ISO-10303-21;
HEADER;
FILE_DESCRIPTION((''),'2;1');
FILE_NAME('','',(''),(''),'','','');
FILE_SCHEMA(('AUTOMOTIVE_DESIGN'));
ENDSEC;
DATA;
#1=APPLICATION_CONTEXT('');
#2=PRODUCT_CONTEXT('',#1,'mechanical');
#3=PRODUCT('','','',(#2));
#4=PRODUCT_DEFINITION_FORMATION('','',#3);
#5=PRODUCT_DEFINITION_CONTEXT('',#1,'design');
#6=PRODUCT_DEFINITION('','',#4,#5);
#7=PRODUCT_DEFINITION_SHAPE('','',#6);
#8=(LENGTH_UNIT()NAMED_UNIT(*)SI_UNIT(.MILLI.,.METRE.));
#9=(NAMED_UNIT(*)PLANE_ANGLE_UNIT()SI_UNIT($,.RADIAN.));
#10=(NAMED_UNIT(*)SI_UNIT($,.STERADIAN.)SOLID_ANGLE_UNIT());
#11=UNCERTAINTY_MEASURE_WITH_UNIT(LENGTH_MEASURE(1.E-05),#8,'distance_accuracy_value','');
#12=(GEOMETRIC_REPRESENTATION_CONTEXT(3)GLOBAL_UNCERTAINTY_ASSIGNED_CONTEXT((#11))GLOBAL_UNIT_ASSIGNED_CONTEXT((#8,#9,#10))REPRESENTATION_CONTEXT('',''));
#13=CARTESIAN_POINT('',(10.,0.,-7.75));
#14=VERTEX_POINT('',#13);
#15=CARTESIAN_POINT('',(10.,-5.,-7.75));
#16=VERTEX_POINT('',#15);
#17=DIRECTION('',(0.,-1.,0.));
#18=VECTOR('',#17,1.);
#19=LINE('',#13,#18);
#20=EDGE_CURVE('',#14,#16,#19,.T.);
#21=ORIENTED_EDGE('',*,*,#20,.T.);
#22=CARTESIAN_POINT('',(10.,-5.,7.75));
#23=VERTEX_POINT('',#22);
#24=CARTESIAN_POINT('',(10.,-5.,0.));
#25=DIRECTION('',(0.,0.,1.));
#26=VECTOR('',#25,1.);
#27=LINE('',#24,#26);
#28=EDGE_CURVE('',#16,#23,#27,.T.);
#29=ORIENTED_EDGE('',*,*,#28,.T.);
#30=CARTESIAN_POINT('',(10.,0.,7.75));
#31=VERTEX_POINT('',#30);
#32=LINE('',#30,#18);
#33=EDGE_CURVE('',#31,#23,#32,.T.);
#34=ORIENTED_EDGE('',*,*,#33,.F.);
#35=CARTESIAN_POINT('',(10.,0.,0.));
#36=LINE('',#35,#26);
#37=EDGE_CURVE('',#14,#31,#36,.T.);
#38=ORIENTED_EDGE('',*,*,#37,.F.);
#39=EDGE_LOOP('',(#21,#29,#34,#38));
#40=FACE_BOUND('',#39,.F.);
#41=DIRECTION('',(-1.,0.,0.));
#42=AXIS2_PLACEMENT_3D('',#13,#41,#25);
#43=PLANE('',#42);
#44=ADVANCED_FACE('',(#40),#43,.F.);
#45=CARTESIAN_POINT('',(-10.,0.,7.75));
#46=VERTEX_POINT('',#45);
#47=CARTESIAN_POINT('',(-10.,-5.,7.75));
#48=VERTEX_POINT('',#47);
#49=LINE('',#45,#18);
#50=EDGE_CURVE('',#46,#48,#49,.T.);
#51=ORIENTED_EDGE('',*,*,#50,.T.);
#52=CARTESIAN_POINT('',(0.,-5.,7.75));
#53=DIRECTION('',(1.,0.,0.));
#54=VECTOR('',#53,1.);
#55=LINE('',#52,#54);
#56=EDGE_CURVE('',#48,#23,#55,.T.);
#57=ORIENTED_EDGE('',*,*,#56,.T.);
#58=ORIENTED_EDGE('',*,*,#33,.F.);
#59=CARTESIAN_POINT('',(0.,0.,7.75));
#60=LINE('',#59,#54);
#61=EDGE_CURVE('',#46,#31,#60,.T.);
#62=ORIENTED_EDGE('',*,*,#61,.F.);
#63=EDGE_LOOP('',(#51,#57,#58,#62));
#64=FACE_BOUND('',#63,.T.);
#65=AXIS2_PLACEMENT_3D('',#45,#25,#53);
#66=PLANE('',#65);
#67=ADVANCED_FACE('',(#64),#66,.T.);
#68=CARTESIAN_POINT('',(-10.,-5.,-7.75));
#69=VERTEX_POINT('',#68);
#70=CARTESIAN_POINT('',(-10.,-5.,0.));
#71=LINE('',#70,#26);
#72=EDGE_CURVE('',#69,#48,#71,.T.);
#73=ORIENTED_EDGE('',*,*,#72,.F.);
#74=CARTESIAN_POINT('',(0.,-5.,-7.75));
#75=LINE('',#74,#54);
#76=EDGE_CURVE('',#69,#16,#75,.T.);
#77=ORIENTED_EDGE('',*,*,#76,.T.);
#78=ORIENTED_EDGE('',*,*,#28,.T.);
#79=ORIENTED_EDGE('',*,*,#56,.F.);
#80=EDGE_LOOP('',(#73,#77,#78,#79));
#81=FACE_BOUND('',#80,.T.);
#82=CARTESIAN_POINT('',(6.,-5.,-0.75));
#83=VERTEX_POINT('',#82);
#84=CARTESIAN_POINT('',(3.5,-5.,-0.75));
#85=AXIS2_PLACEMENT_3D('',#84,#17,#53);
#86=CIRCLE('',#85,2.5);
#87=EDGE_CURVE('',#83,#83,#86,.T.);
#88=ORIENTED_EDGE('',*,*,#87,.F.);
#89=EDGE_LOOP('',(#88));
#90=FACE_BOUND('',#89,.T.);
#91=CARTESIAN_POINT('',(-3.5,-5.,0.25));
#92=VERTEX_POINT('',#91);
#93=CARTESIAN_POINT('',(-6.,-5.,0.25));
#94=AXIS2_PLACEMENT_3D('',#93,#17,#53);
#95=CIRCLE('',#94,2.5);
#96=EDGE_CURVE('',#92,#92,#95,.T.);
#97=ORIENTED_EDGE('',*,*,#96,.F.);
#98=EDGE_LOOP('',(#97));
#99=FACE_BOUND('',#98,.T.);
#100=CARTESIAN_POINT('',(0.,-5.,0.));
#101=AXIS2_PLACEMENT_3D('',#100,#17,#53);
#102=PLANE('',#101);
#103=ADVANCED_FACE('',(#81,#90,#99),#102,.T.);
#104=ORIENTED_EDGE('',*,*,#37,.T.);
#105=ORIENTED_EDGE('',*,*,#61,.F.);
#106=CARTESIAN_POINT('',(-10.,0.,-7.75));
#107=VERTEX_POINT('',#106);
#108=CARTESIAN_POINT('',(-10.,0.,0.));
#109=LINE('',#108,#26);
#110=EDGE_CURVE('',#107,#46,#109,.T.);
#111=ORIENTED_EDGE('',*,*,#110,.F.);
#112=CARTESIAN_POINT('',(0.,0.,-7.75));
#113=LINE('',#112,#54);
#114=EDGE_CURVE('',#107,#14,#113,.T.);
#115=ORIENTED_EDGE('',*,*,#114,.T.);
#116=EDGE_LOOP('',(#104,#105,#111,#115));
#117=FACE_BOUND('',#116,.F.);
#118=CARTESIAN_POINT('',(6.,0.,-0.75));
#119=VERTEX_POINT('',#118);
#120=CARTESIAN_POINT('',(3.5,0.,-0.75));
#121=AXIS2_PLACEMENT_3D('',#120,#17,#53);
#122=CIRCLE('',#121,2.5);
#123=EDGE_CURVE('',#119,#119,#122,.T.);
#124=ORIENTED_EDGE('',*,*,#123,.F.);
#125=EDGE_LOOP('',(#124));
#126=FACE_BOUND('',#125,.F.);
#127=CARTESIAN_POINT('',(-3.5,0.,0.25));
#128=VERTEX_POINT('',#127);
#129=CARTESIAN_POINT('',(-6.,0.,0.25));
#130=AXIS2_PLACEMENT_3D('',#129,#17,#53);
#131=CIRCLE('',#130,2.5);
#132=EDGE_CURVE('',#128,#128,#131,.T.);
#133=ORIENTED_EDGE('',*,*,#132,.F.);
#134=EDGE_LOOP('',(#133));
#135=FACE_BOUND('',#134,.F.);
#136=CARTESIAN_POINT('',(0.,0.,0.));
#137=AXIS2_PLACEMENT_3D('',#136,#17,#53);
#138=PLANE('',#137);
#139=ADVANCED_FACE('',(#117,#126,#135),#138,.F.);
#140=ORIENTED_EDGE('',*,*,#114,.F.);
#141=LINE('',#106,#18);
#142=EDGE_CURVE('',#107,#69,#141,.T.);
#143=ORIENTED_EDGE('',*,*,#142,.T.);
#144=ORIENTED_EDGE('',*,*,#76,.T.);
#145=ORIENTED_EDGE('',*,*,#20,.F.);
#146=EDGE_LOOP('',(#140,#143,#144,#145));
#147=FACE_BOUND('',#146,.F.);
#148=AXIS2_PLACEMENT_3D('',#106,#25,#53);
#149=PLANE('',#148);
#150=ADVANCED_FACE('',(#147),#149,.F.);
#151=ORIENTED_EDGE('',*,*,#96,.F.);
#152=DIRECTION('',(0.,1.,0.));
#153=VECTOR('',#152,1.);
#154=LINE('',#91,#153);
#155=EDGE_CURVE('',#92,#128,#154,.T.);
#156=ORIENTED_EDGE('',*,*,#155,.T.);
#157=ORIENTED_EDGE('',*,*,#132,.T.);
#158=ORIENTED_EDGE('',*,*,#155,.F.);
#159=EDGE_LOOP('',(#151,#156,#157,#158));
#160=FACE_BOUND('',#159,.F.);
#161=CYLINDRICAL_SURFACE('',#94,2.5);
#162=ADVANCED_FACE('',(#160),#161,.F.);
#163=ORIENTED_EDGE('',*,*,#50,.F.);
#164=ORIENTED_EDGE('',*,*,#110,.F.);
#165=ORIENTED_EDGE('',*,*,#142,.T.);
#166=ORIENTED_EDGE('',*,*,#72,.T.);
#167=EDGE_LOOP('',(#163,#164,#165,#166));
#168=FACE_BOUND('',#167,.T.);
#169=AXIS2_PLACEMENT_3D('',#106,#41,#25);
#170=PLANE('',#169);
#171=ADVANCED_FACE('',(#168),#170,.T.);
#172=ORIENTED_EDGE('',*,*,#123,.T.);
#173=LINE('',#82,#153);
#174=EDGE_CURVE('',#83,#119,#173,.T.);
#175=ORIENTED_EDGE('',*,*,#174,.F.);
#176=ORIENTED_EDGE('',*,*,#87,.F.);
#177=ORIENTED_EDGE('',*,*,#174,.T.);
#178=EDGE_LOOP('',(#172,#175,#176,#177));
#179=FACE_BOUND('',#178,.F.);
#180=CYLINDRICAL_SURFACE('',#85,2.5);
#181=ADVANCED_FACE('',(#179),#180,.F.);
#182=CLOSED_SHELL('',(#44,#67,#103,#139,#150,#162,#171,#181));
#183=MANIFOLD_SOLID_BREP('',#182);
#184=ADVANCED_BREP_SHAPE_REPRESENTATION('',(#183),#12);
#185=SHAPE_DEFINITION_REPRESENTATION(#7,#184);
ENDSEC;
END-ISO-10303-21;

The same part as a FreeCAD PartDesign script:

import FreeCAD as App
import Part
import Sketcher
Q = App.Units.Quantity


def add_polygon(sketch, points):
    """Adds a closed chain of lines whose ends are joined by coincident constraints."""
    first, n = sketch.GeometryCount, len(points)
    for a, b in zip(points, points[1:] + points[:1]):
        sketch.addGeometry(Part.LineSegment(App.Vector(*a, 0), App.Vector(*b, 0)), False)
    for i in range(n):
        sketch.addConstraint(Sketcher.Constraint("Coincident", first + i, 2, first + (i + 1) % n, 1))

doc = App.newDocument("Part")
params = doc.addObject("Spreadsheet::Sheet", "Params")
for row, (alias, value) in enumerate([
    ("sketch1_width", "20 mm"),
    ("sketch1_height", "15.5 mm"),
    ("pad1_length", "5 mm"),
    ("sketch2_diameter", "5 mm"),
    ("pocket1_length", "25 mm"),
    ("sketch3_diameter", "5 mm"),
    ("pocket2_length", "25 mm"),
], start=1):
    params.set(f"A{row}", alias)
    params.set(f"B{row}", "=" + value)
    params.setAlias(f"B{row}", alias)

body = doc.addObject("PartDesign::Body", "Body")

sketch1 = body.newObject("Sketcher::SketchObject", "Sketch")
sketch1.AttachmentSupport = (doc.getObject("XZ_Plane"), [""])
sketch1.MapMode = "FlatFace"
add_polygon(sketch1, [(-10, 8), (-10, -8), (10, -8), (10, 8)])
sketch1.addConstraint(Sketcher.Constraint("Vertical", 0))
sketch1.addConstraint(Sketcher.Constraint("Horizontal", 1))
sketch1.addConstraint(Sketcher.Constraint("Vertical", 2))
sketch1.addConstraint(Sketcher.Constraint("Horizontal", 3))
sketch1.addConstraint(Sketcher.Constraint("Symmetric", 0, 2, 2, 2, -1, 1))
sketch1.addConstraint(Sketcher.Constraint("DistanceX", 1, 1, 1, 2, Q("20 mm")))
sketch1.addConstraint(Sketcher.Constraint("DistanceY", 0, 2, 0, 1, Q("15.5 mm")))
sketch1.setExpression("Constraints[9]", "Params.sketch1_width")
sketch1.setExpression("Constraints[10]", "Params.sketch1_height")
pad1 = body.newObject("PartDesign::Pad", "Pad")
pad1.Profile = sketch1
pad1.setExpression("Length", "Params.pad1_length")

sketch2 = body.newObject("Sketcher::SketchObject", "Sketch001")
sketch2.AttachmentSupport = (doc.getObject("XZ_Plane"), [""])
sketch2.MapMode = "FlatFace"
sketch2.AttachmentOffset = App.Placement(App.Vector(0, 0, 5), App.Rotation())
sketch2.addGeometry(Part.Circle(App.Vector(-6, 0.2, 0), App.Vector(0, 0, 1), 2.5), False)
sketch2.addConstraint(Sketcher.Constraint("Diameter", 0, Q("5 mm")))
sketch2.addConstraint(Sketcher.Constraint("DistanceX", 0, 3, -1, 1, Q("6 mm")))
sketch2.addConstraint(Sketcher.Constraint("DistanceY", -1, 1, 0, 3, Q("0.25 mm")))
sketch2.setExpression("Constraints[0]", "Params.sketch2_diameter")
pocket1 = body.newObject("PartDesign::Pocket", "Pocket")
pocket1.Profile = sketch2
pocket1.setExpression("Length", "Params.pocket1_length")

sketch3 = body.newObject("Sketcher::SketchObject", "Sketch002")
sketch3.AttachmentSupport = (doc.getObject("XZ_Plane"), [""])
sketch3.MapMode = "FlatFace"
sketch3.AttachmentOffset = App.Placement(App.Vector(0, 0, 5), App.Rotation())
sketch3.addGeometry(Part.Circle(App.Vector(3.5, -0.8, 0), App.Vector(0, 0, 1), 2.5), False)
sketch3.addConstraint(Sketcher.Constraint("Diameter", 0, Q("5 mm")))
sketch3.addConstraint(Sketcher.Constraint("DistanceX", -1, 1, 0, 3, Q("3.5 mm")))
sketch3.addConstraint(Sketcher.Constraint("DistanceY", 0, 3, -1, 1, Q("0.75 mm")))
sketch3.setExpression("Constraints[0]", "Params.sketch3_diameter")
pocket2 = body.newObject("PartDesign::Pocket", "Pocket001")
pocket2.Profile = sketch3
pocket2.setExpression("Length", "Params.pocket2_length")

doc.recompute()
